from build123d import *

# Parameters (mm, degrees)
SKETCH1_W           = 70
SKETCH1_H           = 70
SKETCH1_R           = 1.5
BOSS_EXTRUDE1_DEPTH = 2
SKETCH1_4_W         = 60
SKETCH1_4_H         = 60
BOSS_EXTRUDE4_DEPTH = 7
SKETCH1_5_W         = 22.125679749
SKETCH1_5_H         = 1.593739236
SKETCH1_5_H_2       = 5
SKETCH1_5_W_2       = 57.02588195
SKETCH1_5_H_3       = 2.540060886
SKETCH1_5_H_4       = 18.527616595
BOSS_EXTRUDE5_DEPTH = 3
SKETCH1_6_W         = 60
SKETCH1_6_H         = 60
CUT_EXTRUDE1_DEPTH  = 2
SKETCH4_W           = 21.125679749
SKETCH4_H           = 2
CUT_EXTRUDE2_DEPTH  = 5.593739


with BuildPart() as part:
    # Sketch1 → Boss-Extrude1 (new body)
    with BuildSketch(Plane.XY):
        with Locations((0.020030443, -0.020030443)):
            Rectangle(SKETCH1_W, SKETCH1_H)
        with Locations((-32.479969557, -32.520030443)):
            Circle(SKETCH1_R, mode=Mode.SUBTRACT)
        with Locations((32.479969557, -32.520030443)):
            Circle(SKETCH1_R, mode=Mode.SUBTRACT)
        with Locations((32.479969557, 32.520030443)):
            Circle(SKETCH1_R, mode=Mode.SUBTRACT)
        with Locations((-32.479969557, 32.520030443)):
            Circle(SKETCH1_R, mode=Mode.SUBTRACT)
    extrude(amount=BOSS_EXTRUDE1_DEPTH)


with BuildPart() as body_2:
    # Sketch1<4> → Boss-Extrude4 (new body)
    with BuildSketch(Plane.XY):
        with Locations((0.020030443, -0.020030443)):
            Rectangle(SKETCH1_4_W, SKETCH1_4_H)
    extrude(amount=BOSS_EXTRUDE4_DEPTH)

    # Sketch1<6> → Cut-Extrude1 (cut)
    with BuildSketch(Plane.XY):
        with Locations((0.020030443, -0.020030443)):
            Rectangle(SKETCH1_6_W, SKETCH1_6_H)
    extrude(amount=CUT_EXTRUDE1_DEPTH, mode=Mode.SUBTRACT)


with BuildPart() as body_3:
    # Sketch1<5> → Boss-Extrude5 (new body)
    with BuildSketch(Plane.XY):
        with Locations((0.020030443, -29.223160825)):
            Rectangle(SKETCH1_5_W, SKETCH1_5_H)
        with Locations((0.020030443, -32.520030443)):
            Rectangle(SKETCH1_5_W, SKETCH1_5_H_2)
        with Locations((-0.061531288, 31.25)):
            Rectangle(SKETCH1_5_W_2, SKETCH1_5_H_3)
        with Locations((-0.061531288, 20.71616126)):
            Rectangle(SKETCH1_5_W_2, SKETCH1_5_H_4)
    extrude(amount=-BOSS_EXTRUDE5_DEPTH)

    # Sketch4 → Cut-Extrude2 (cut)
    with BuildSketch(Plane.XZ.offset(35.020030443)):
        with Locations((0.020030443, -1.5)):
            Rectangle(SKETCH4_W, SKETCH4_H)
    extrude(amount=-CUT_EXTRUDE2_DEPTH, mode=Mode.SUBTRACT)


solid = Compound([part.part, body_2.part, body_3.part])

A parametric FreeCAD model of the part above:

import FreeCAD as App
import Part
import Sketcher

V = App.Vector
Q = App.Units.Quantity


def add_polygon(sketch, points):
    """Adds a closed chain of lines whose ends are joined by coincident constraints."""
    first, n = sketch.GeometryCount, len(points)
    for a, b in zip(points, points[1:] + points[:1]):
        sketch.addGeometry(Part.LineSegment(App.Vector(*a, 0), App.Vector(*b, 0)), False)
    for i in range(n):
        sketch.addConstraint(Sketcher.Constraint("Coincident", first + i, 2, first + (i + 1) % n, 1))

doc = App.newDocument("Part")
body = doc.addObject("PartDesign::Body", "Body")

# Sketch on XY plane
sketch1 = body.newObject("Sketcher::SketchObject", "Sketch")
sketch1.AttachmentSupport = (doc.getObject("XY_Plane"), [""])
sketch1.MapMode = "FlatFace"
add_polygon(sketch1, [(-35, 35), (-35, -35), (35, -35), (35, 35)])  # lines 0-3
sketch1.addGeometry(Part.Circle(V(-32.5, -32.5, 0), V(0, 0, 1), 1.5), False)  # 4
sketch1.addGeometry(Part.Circle(V(32.5, -32.5, 0), V(0, 0, 1), 1.5), False)  # 5
sketch1.addGeometry(Part.Circle(V(-32.5, 32.5, 0), V(0, 0, 1), 1.5), False)  # 6
sketch1.addGeometry(Part.Circle(V(32.5, 32.5, 0), V(0, 0, 1), 1.5), False)  # 7
sketch1.addConstraint(Sketcher.Constraint("Vertical", 0))
sketch1.addConstraint(Sketcher.Constraint("Horizontal", 1))
sketch1.addConstraint(Sketcher.Constraint("Vertical", 2))
sketch1.addConstraint(Sketcher.Constraint("Horizontal", 3))
sketch1.addConstraint(Sketcher.Constraint("Equal", 4, 5))
sketch1.addConstraint(Sketcher.Constraint("Equal", 5, 6))
sketch1.addConstraint(Sketcher.Constraint("Equal", 6, 7))
sketch1.addConstraint(Sketcher.Constraint("Symmetric", 5, 3, 6, 3, -1, 1))
sketch1.addConstraint(Sketcher.Constraint("Symmetric", 4, 3, 7, 3, -1, 1))
sketch1.addConstraint(Sketcher.Constraint("Symmetric", 4, 3, 5, 3, -2))
sketch1.addConstraint(Sketcher.Constraint("Equal", 3, 0))
sketch1.addConstraint(Sketcher.Constraint("Diameter", 4, Q("3 mm")))
sketch1.addConstraint(Sketcher.Constraint("DistanceX", 1, 1, 1, 2, Q("70 mm")))
sketch1.addConstraint(Sketcher.Constraint("DistanceX", 0, 2, 4, 3, Q("2.5 mm")))
sketch1.addConstraint(Sketcher.Constraint("DistanceY", 0, 2, 4, 3, Q("2.5 mm")))
sketch1.addConstraint(Sketcher.Constraint("DistanceX", 4, 3, -1, 1, Q("32.47997 mm")))
sketch1.addConstraint(Sketcher.Constraint("DistanceY", 4, 3, -1, 1, Q("32.52003 mm")))
pad1 = body.newObject("PartDesign::Pad", "Pad")
pad1.Profile = sketch1
pad1.Length = 2
body2 = doc.addObject("PartDesign::Body", "Body001")

# Sketch on XY plane
sketch2 = body2.newObject("Sketcher::SketchObject", "Sketch001")
sketch2.AttachmentSupport = (doc.getObject("XY_Plane001"), [""])
sketch2.MapMode = "FlatFace"
add_polygon(sketch2, [(-30, 30), (-30, -30), (30, -30), (30, 30)])  # lines 0-3
sketch2.addConstraint(Sketcher.Constraint("Vertical", 0))
sketch2.addConstraint(Sketcher.Constraint("Horizontal", 1))
sketch2.addConstraint(Sketcher.Constraint("Vertical", 2))
sketch2.addConstraint(Sketcher.Constraint("Horizontal", 3))
sketch2.addConstraint(Sketcher.Constraint("Equal", 3, 0))
sketch2.addConstraint(Sketcher.Constraint("DistanceX", 1, 1, 1, 2, Q("60 mm")))
sketch2.addConstraint(Sketcher.Constraint("DistanceX", 0, 2, -1, 1, Q("29.97997 mm")))
sketch2.addConstraint(Sketcher.Constraint("DistanceY", 0, 2, -1, 1, Q("30.02003 mm")))
pad2 = body2.newObject("PartDesign::Pad", "Pad001")
pad2.Profile = sketch2
pad2.Length = 7

# Sketch on XY plane
sketch3 = body2.newObject("Sketcher::SketchObject", "Sketch002")
sketch3.AttachmentSupport = (doc.getObject("XY_Plane001"), [""])
sketch3.MapMode = "FlatFace"
add_polygon(sketch3, [(-30, 30), (-30, -30), (30, -30), (30, 30)])  # lines 0-3
sketch3.addConstraint(Sketcher.Constraint("Vertical", 0))
sketch3.addConstraint(Sketcher.Constraint("Horizontal", 1))
sketch3.addConstraint(Sketcher.Constraint("Vertical", 2))
sketch3.addConstraint(Sketcher.Constraint("Horizontal", 3))
sketch3.addConstraint(Sketcher.Constraint("Equal", 3, 0))
sketch3.addConstraint(Sketcher.Constraint("DistanceX", 1, 1, 1, 2, Q("60 mm")))
sketch3.addConstraint(Sketcher.Constraint("DistanceX", 0, 2, -1, 1, Q("29.97997 mm")))
sketch3.addConstraint(Sketcher.Constraint("DistanceY", 0, 2, -1, 1, Q("30.02003 mm")))
pocket1 = body2.newObject("PartDesign::Pocket", "Pocket")
pocket1.Profile = sketch3
pocket1.Length = 2
pocket1.Reversed = True
body3 = doc.addObject("PartDesign::Body", "Body002")
body3.AllowCompound = True

# Sketch on XY plane
sketch4 = body3.newObject("Sketcher::SketchObject", "Sketch003")
sketch4.AttachmentSupport = (doc.getObject("XY_Plane002"), [""])
sketch4.MapMode = "FlatFace"
add_polygon(sketch4, [(-11, -28), (-11, -35), (11, -35), (11, -28)])  # lines 0-3
add_polygon(sketch4, [(-29, 33), (-29, 11), (28, 11), (28, 33)])  # lines 4-7
sketch4.addConstraint(Sketcher.Constraint("Vertical", 0))
sketch4.addConstraint(Sketcher.Constraint("Horizontal", 1))
sketch4.addConstraint(Sketcher.Constraint("Vertical", 2))
sketch4.addConstraint(Sketcher.Constraint("Horizontal", 3))
sketch4.addConstraint(Sketcher.Constraint("Vertical", 4))
sketch4.addConstraint(Sketcher.Constraint("Horizontal", 5))
sketch4.addConstraint(Sketcher.Constraint("Vertical", 6))
sketch4.addConstraint(Sketcher.Constraint("Horizontal", 7))
sketch4.addConstraint(Sketcher.Constraint("DistanceX", 1, 1, 1, 2, Q("22.12568 mm")))
sketch4.addConstraint(Sketcher.Constraint("DistanceX", 5, 1, 5, 2, Q("57.025882 mm")))
sketch4.addConstraint(Sketcher.Constraint("DistanceY", 0, 2, 0, 1, Q("6.593739 mm")))
sketch4.addConstraint(Sketcher.Constraint("DistanceY", 4, 2, 4, 1, Q("21.067677 mm")))
sketch4.addConstraint(Sketcher.Constraint("DistanceX", 0, 2, -1, 1, Q("11.042809 mm")))
sketch4.addConstraint(Sketcher.Constraint("DistanceY", 0, 2, -1, 1, Q("35.02003 mm")))
sketch4.addConstraint(Sketcher.Constraint("DistanceX", -1, 1, 5, 2, Q("28.45141 mm")))
sketch4.addConstraint(Sketcher.Constraint("DistanceY", -1, 1, 6, 2, Q("32.52003 mm")))
pad3 = body3.newObject("PartDesign::Pad", "Pad002")
pad3.Profile = sketch4
pad3.Length = 3
pad3.Reversed = True

# Sketch on XZ plane
sketch5 = body3.newObject("Sketcher::SketchObject", "Sketch004")
sketch5.AttachmentSupport = (doc.getObject("XZ_Plane002"), [""])
sketch5.MapMode = "FlatFace"
sketch5.AttachmentOffset = App.Placement(V(0, 0, 35.02003), App.Rotation())
add_polygon(sketch5, [(-10.5, -0.5), (-10.5, -2.5), (10.6, -2.5), (10.6, -0.5)])  # lines 0-3
sketch5.addConstraint(Sketcher.Constraint("Vertical", 0))
sketch5.addConstraint(Sketcher.Constraint("Horizontal", 1))
sketch5.addConstraint(Sketcher.Constraint("Vertical", 2))
sketch5.addConstraint(Sketcher.Constraint("Horizontal", 3))
sketch5.addConstraint(Sketcher.Constraint("DistanceY", 0, 2, 0, 1, Q("2 mm")))
sketch5.addConstraint(Sketcher.Constraint("DistanceY", 0, 2, -1, 1, Q("2.5 mm")))
sketch5.addConstraint(Sketcher.Constraint("DistanceX", 1, 1, 1, 2, Q("21.12568 mm")))
sketch5.addConstraint(Sketcher.Constraint("DistanceX", 0, 2, -1, 1, Q("10.542809 mm")))
pocket2 = body3.newObject("PartDesign::Pocket", "Pocket001")
pocket2.Profile = sketch5
pocket2.Length = 5.593739

doc.recompute()
